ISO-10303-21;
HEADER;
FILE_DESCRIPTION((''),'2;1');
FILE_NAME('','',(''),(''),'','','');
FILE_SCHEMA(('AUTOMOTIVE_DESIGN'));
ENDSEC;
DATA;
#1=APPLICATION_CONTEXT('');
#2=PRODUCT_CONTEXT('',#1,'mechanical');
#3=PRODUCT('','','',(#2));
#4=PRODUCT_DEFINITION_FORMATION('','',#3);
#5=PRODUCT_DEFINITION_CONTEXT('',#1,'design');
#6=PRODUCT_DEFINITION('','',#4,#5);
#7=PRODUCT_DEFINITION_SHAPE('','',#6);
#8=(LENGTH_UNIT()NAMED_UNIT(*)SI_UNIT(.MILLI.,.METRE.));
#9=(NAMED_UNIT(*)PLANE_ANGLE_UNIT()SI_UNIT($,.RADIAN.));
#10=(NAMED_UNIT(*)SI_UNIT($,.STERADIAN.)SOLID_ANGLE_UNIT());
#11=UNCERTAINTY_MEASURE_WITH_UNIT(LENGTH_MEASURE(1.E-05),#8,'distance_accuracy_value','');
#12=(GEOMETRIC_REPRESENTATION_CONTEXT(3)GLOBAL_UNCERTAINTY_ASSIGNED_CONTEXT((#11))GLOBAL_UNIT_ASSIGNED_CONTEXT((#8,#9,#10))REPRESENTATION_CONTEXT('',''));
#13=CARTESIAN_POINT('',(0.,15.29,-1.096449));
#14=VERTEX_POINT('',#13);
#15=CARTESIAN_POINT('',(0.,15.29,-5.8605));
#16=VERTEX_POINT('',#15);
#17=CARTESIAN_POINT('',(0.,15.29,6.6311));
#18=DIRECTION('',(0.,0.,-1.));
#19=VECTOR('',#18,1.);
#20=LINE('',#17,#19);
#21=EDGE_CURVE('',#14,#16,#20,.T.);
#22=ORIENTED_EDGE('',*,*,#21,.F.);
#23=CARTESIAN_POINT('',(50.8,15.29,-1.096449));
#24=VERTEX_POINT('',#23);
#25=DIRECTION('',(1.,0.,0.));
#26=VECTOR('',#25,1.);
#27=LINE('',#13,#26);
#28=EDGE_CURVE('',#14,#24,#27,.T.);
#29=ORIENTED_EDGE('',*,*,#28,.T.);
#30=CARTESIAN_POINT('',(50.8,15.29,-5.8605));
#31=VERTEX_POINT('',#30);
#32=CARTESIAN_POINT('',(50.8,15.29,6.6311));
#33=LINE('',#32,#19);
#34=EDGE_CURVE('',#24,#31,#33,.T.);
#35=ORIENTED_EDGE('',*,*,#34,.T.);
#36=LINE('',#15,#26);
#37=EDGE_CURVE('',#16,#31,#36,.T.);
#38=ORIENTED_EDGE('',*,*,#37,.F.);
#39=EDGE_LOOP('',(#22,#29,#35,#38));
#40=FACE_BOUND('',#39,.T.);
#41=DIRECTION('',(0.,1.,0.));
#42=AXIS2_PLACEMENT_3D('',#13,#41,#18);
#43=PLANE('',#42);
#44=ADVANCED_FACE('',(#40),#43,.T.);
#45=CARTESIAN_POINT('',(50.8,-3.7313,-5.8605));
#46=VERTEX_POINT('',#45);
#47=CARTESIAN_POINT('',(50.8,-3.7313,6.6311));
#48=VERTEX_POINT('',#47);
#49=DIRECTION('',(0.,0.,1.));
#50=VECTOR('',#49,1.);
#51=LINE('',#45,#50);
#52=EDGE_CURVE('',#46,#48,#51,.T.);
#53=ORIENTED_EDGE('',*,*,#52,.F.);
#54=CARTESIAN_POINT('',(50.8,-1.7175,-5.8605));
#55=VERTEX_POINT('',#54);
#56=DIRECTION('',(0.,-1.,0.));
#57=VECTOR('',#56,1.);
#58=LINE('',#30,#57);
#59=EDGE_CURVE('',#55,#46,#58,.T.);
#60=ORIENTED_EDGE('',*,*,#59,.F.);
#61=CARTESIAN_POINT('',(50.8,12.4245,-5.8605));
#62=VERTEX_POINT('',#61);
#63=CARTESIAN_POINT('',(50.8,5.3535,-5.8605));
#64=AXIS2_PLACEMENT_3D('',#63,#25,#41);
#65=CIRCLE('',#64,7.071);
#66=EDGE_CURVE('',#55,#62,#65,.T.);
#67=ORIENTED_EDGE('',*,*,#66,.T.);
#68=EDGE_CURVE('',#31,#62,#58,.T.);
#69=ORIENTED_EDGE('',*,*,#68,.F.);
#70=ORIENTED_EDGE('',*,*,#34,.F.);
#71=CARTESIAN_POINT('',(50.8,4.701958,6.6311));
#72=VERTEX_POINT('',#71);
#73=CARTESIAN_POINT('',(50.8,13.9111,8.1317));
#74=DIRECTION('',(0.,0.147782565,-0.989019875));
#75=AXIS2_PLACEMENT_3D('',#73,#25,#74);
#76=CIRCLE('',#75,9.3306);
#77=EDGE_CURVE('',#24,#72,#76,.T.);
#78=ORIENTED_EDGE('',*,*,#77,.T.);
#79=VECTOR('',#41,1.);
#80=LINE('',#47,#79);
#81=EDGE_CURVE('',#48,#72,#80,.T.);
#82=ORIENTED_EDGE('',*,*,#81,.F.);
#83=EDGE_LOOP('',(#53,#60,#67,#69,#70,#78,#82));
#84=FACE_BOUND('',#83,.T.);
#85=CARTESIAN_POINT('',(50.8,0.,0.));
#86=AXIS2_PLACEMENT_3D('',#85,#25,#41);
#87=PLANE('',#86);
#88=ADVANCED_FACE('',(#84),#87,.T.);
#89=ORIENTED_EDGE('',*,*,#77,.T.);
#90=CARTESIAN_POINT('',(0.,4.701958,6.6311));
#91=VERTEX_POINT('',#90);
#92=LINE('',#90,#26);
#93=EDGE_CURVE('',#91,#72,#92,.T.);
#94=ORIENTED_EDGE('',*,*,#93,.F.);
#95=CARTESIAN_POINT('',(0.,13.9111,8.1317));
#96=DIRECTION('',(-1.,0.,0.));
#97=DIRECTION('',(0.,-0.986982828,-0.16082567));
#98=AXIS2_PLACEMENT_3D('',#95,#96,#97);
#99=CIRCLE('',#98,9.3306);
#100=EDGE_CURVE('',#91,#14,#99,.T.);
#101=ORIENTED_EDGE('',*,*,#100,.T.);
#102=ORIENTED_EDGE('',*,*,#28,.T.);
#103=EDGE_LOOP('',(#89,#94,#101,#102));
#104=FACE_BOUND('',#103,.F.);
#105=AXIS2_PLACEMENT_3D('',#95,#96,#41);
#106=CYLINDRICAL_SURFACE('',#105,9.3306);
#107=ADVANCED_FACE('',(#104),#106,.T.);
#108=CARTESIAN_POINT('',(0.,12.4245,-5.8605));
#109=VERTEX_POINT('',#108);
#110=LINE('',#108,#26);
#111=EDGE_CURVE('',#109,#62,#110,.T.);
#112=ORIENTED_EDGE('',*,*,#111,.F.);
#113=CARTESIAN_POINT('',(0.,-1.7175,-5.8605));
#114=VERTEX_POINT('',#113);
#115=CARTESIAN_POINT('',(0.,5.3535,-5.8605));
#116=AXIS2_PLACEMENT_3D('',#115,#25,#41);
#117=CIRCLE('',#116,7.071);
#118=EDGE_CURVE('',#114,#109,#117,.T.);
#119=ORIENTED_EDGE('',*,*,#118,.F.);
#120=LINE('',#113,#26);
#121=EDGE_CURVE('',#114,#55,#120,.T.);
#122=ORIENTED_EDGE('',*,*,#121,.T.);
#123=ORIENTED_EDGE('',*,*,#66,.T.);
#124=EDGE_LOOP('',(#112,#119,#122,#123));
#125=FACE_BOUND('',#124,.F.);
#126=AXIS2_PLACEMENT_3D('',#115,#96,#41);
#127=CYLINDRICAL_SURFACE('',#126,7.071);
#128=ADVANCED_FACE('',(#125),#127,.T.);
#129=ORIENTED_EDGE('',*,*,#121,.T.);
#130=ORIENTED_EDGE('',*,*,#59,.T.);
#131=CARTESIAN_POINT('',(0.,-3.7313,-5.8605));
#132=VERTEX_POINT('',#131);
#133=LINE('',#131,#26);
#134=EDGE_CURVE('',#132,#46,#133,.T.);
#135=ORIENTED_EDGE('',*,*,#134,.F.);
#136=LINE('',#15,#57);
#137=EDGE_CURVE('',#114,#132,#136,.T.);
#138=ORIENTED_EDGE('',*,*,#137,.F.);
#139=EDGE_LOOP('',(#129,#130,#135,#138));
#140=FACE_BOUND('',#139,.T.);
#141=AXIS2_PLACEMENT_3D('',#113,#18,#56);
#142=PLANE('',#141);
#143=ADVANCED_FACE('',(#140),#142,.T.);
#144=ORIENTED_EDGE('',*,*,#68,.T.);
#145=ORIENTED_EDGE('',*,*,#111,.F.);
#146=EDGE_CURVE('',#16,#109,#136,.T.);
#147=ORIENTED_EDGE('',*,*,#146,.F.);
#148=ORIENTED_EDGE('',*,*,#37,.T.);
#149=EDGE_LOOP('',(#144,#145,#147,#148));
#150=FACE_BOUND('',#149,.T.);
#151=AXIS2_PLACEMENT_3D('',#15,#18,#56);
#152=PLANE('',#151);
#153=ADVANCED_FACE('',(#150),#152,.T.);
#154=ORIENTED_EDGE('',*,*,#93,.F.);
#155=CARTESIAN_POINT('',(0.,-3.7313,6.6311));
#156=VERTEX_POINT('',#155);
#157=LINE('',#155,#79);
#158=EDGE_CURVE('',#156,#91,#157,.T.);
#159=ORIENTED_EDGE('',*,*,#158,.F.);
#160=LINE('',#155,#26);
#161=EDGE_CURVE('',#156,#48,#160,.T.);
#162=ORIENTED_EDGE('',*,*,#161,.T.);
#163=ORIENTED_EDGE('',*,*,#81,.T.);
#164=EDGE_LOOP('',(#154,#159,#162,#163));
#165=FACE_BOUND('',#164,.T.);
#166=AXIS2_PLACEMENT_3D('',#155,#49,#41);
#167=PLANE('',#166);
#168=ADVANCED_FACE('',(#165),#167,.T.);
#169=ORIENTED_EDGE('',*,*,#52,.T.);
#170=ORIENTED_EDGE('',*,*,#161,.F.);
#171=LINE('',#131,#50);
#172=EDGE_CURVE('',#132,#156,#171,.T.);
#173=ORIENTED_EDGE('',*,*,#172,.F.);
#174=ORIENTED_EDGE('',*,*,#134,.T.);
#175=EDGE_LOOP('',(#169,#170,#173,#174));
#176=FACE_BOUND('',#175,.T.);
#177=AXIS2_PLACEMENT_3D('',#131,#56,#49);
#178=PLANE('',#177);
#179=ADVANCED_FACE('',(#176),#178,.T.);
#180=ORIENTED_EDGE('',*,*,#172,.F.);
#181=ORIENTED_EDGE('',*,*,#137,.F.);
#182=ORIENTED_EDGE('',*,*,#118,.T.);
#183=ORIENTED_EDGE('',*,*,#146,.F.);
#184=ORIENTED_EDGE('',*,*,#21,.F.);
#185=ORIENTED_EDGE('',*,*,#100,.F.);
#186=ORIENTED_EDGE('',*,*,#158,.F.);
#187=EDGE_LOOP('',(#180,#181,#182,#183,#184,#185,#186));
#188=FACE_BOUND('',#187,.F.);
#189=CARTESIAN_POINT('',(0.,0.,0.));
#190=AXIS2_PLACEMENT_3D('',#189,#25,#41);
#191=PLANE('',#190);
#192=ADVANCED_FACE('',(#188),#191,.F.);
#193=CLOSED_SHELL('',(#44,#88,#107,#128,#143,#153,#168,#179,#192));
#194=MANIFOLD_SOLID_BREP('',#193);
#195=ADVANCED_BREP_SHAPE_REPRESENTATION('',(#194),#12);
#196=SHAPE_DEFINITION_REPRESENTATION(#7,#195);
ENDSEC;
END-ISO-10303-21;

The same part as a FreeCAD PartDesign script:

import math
import FreeCAD as App
import Part
import Sketcher
from FreeCAD import Vector
Q = App.Units.Quantity

doc = App.newDocument("Part")
body = doc.addObject("PartDesign::Body", "Body")

sketch1 = doc.addObject("Sketcher::SketchObject", "Sketch")
body.addObject(sketch1)
sketch1.AttachmentSupport = (doc.YZ_Plane, [""])
sketch1.MapMode = "FlatFace"
sketch1.addGeometry([
    Part.ArcOfCircle(Part.Circle(Vector(5.4, -5.9, 0), Vector(0, 0, 1), 7.1), math.radians(180), math.radians(360)),
    Part.LineSegment(Vector(12.4, -5.9, 0), Vector(15.3, -5.9, 0)),
    Part.LineSegment(Vector(15.3, -5.9, 0), Vector(15.3, -1.1, 0)),
    Part.ArcOfCircle(Part.Circle(Vector(13.9, 8.1, 0), Vector(0, 0, 1), 9.3), math.radians(-82), math.radians(189)),
    Part.LineSegment(Vector(4.7, 6.6, 0), Vector(-3.7, 6.6, 0)),
    Part.LineSegment(Vector(-3.7, 6.6, 0), Vector(-3.7, -5.9, 0)),
    Part.LineSegment(Vector(-3.7, -5.9, 0), Vector(-1.7, -5.9, 0)),
], False)
sketch1.addConstraint([
    Sketcher.Constraint("Coincident", 0, 2, 1, 1),
    Sketcher.Constraint("Coincident", 1, 2, 2, 1),
    Sketcher.Constraint("Coincident", 2, 2, 3, 1),
    Sketcher.Constraint("Coincident", 3, 2, 4, 1),
    Sketcher.Constraint("Coincident", 4, 2, 5, 1),
    Sketcher.Constraint("Coincident", 5, 2, 6, 1),
    Sketcher.Constraint("Coincident", 6, 2, 0, 1),
    Sketcher.Constraint("Horizontal", 1),
    Sketcher.Constraint("Vertical", 2),
    Sketcher.Constraint("Horizontal", 4),
    Sketcher.Constraint("Vertical", 5),
    Sketcher.Constraint("Horizontal", 6),
    Sketcher.Constraint("Horizontal", 1, 2, 5, 2),
    Sketcher.Constraint("Radius", 0, 7.071),
    Sketcher.Constraint("Radius", 3, 9.3306),
    Sketcher.Constraint("DistanceY", 5, 2, 5, 1, Q("0.4918 in")),
    Sketcher.Constraint("DistanceX", 1, 1, 1, 2, 2.8655),
    Sketcher.Constraint("DistanceX", 4, 2, 4, 1, 8.4333),
    Sketcher.Constraint("DistanceX", 6, 1, 6, 2, 2.0138),
    Sketcher.Constraint("DistanceY", 2, 1, 2, 2, 4.764),
    Sketcher.Constraint("DistanceX", 4, 2, -1, 1, Q("0.1469 in")),
    Sketcher.Constraint("DistanceY", 0, 3, 3, 2, Q("0.4918 in")),
    Sketcher.Constraint("DistanceY", 0, 3, -1, 1, 5.8605),
])
pad1 = doc.addObject("PartDesign::Pad", "Pad")
body.addObject(pad1)
pad1.Profile = sketch1
pad1.Length = Q("2 in")

doc.recompute()
